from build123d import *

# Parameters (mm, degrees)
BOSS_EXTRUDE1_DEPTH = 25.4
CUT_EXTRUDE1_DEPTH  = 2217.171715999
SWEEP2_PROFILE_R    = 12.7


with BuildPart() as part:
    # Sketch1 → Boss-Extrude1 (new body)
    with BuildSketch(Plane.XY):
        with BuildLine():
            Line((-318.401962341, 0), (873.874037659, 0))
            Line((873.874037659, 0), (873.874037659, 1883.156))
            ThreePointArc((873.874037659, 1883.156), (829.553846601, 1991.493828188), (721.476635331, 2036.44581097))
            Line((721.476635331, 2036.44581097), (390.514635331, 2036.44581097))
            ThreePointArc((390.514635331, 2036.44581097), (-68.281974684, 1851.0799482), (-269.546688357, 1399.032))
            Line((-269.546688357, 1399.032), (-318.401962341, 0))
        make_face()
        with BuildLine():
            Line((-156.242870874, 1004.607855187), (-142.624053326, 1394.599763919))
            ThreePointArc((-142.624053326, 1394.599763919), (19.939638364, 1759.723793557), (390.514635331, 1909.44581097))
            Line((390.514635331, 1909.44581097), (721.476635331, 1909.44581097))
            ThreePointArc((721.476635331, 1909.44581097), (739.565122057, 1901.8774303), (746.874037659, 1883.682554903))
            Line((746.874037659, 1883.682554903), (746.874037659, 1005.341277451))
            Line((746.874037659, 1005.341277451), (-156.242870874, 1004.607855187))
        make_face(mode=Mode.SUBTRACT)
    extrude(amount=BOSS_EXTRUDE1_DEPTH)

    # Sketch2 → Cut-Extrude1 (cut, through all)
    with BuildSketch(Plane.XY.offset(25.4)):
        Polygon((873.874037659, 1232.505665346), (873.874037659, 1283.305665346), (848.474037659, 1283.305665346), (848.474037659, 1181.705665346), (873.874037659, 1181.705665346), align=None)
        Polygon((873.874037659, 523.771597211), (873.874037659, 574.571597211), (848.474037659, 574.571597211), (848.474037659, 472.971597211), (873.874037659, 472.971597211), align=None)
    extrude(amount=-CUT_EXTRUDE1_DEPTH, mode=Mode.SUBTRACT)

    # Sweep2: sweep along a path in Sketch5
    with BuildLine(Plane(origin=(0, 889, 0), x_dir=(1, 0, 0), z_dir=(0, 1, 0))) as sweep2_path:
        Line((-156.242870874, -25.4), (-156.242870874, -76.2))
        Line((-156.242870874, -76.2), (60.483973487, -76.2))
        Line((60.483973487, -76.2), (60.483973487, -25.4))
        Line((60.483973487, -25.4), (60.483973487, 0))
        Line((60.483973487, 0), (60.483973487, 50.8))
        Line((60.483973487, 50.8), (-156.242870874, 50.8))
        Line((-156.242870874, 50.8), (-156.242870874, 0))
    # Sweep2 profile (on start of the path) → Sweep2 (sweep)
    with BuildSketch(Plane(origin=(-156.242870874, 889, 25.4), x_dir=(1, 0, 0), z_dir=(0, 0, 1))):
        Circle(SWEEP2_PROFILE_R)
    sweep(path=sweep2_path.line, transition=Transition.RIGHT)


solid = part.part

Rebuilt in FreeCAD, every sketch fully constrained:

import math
import FreeCAD as App
import Part
import Sketcher
Q = App.Units.Quantity

doc = App.newDocument("Part")
body = doc.addObject("PartDesign::Body", "Body")

# Sketch on XY plane
sketch1 = body.newObject("Sketcher::SketchObject", "Sketch")
sketch1.AttachmentSupport = (doc.getObject("XY_Plane"), [""])
sketch1.MapMode = "FlatFace"
sketch1.addGeometry(Part.LineSegment(App.Vector(-318, 0, 0), App.Vector(874, 0, 0)), False)
sketch1.addGeometry(Part.LineSegment(App.Vector(874, 0, 0), App.Vector(874, 1883, 0)), False)
sketch1.addGeometry(Part.ArcOfCircle(Part.Circle(App.Vector(721, 1884, 0), App.Vector(0, 0, 1), 152), math.radians(0), math.radians(90)), False)
sketch1.addGeometry(Part.LineSegment(App.Vector(721, 2036, 0), App.Vector(391, 2036, 0)), False)
sketch1.addGeometry(Part.ArcOfCircle(Part.Circle(App.Vector(391, 1376, 0), App.Vector(0, 0, 1), 660), math.radians(90), math.radians(178)), False)
sketch1.addGeometry(Part.LineSegment(App.Vector(-270, 1399, 0), App.Vector(-318, 0, 0)), False)
sketch1.addGeometry(Part.LineSegment(App.Vector(747, 1005, 0), App.Vector(-156, 1005, 0)), False)
sketch1.addGeometry(Part.LineSegment(App.Vector(-156, 1005, 0), App.Vector(-143, 1395, 0)), False)
sketch1.addGeometry(Part.ArcOfCircle(Part.Circle(App.Vector(391, 1376, 0), App.Vector(0, 0, 1), 533), math.radians(90), math.radians(178)), False)
sketch1.addGeometry(Part.LineSegment(App.Vector(391, 1909, 0), App.Vector(721, 1909, 0)), False)
sketch1.addGeometry(Part.ArcOfCircle(Part.Circle(App.Vector(721, 1884, 0), App.Vector(0, 0, 1), 25), math.radians(-1), math.radians(90)), False)
sketch1.addGeometry(Part.LineSegment(App.Vector(747, 1884, 0), App.Vector(747, 1005, 0)), False)
sketch1.addConstraint(Sketcher.Constraint("Coincident", 0, 2, 1, 1))
sketch1.addConstraint(Sketcher.Constraint("Coincident", 1, 2, 2, 1))
sketch1.addConstraint(Sketcher.Constraint("Tangent", 2, 2, 3, 1))
sketch1.addConstraint(Sketcher.Constraint("Tangent", 3, 2, 4, 1))
sketch1.addConstraint(Sketcher.Constraint("Tangent", 4, 2, 5, 1))
sketch1.addConstraint(Sketcher.Constraint("Coincident", 5, 2, 0, 1))
sketch1.addConstraint(Sketcher.Constraint("Coincident", 6, 2, 7, 1))
sketch1.addConstraint(Sketcher.Constraint("Tangent", 7, 2, 8, 2))
sketch1.addConstraint(Sketcher.Constraint("Tangent", 8, 1, 9, 1))
sketch1.addConstraint(Sketcher.Constraint("Tangent", 9, 2, 10, 2))
sketch1.addConstraint(Sketcher.Constraint("Coincident", 10, 1, 11, 1))
sketch1.addConstraint(Sketcher.Constraint("Coincident", 11, 2, 6, 1))
sketch1.addConstraint(Sketcher.Constraint("Horizontal", 0))
sketch1.addConstraint(Sketcher.Constraint("Vertical", 1))
sketch1.addConstraint(Sketcher.Constraint("Horizontal", 3))
sketch1.addConstraint(Sketcher.Constraint("Horizontal", 9))
sketch1.addConstraint(Sketcher.Constraint("Vertical", 11))
sketch1.addConstraint(Sketcher.Constraint("Coincident", 8, 3, 4, 3))
sketch1.addConstraint(Sketcher.Constraint("Coincident", 10, 3, 2, 3))
sketch1.addConstraint(Sketcher.Constraint("PointOnObject", 0, 2, -1))
sketch1.addConstraint(Sketcher.Constraint("Parallel", 5, 7))
sketch1.addConstraint(Sketcher.Constraint("Radius", 2, Q("6 in")))
sketch1.addConstraint(Sketcher.Constraint("Radius", 10, Q("1 in")))
sketch1.addConstraint(Sketcher.Constraint("Angle", 5, Q("-92 deg")))
sketch1.addConstraint(Sketcher.Constraint("DistanceX", 10, 1, 1, 2, Q("5 in")))
sketch1.addConstraint(Sketcher.Constraint("DistanceX", 0, 1, 0, 2, Q("46.94 in")))
sketch1.addConstraint(Sketcher.Constraint("DistanceX", 3, 2, 3, 1, Q("13.03 in")))
sketch1.addConstraint(Sketcher.Constraint("DistanceY", 1, 1, 1, 2, Q("74.14 in")))
sketch1.addConstraint(Sketcher.Constraint("Radius", 4, 660.46366))
sketch1.addConstraint(Sketcher.Constraint("DistanceY", 11, 2, 11, 1, 878.341277))
sketch1.addConstraint(Sketcher.Constraint("DistanceX", 4, 2, -1, 1, 269.546688))
sketch1.addConstraint(Sketcher.Constraint("DistanceX", 6, 2, -1, 1, 156.242871))
pad1 = body.newObject("PartDesign::Pad", "Pad")
pad1.Profile = sketch1
pad1.Length = Q("1 in")

# Sketch on XY plane
sketch2 = body.newObject("Sketcher::SketchObject", "Sketch001")
sketch2.AttachmentSupport = (doc.getObject("XY_Plane"), [""])
sketch2.MapMode = "FlatFace"
sketch2.AttachmentOffset = App.Placement(App.Vector(0, 0, 1 * 25.4), App.Rotation())
sketch2.addGeometry(Part.LineSegment(App.Vector(874, 1283, 0), App.Vector(848, 1283, 0)), False)
sketch2.addGeometry(Part.LineSegment(App.Vector(848, 1283, 0), App.Vector(848, 1182, 0)), False)
sketch2.addGeometry(Part.LineSegment(App.Vector(848, 1182, 0), App.Vector(874, 1182, 0)), False)
sketch2.addGeometry(Part.LineSegment(App.Vector(874, 1182, 0), App.Vector(874, 1283, 0)), False)
sketch2.addGeometry(Part.LineSegment(App.Vector(874, 575, 0), App.Vector(848, 575, 0)), False)
sketch2.addGeometry(Part.LineSegment(App.Vector(848, 575, 0), App.Vector(848, 473, 0)), False)
sketch2.addGeometry(Part.LineSegment(App.Vector(848, 473, 0), App.Vector(874, 473, 0)), False)
sketch2.addGeometry(Part.LineSegment(App.Vector(874, 473, 0), App.Vector(874, 575, 0)), False)
sketch2.addConstraint(Sketcher.Constraint("Coincident", 0, 2, 1, 1))
sketch2.addConstraint(Sketcher.Constraint("Coincident", 1, 2, 2, 1))
sketch2.addConstraint(Sketcher.Constraint("Coincident", 2, 2, 3, 1))
sketch2.addConstraint(Sketcher.Constraint("Coincident", 3, 2, 0, 1))
sketch2.addConstraint(Sketcher.Constraint("Coincident", 4, 2, 5, 1))
sketch2.addConstraint(Sketcher.Constraint("Coincident", 5, 2, 6, 1))
sketch2.addConstraint(Sketcher.Constraint("Coincident", 6, 2, 7, 1))
sketch2.addConstraint(Sketcher.Constraint("Coincident", 7, 2, 4, 1))
sketch2.addConstraint(Sketcher.Constraint("Horizontal", 0))
sketch2.addConstraint(Sketcher.Constraint("Vertical", 1))
sketch2.addConstraint(Sketcher.Constraint("Horizontal", 2))
sketch2.addConstraint(Sketcher.Constraint("Vertical", 3))
sketch2.addConstraint(Sketcher.Constraint("Horizontal", 4))
sketch2.addConstraint(Sketcher.Constraint("Vertical", 5))
sketch2.addConstraint(Sketcher.Constraint("Horizontal", 6))
sketch2.addConstraint(Sketcher.Constraint("Vertical", 7))
sketch2.addConstraint(Sketcher.Constraint("Vertical", 1, 2, 4, 2))
sketch2.addConstraint(Sketcher.Constraint("Vertical", 3, 2, 6, 2))
sketch2.addConstraint(Sketcher.Constraint("Equal", 3, 5))
sketch2.addConstraint(Sketcher.Constraint("DistanceX", 0, 2, 0, 1, Q("1 in")))
sketch2.addConstraint(Sketcher.Constraint("DistanceY", 1, 2, 1, 1, Q("4 in")))
sketch2.addConstraint(Sketcher.Constraint("DistanceY", 4, 2, 1, 2, 607.134068))
sketch2.addConstraint(Sketcher.Constraint("DistanceX", -1, 1, 0, 2, 848.474038))
sketch2.addConstraint(Sketcher.Constraint("DistanceY", -1, 1, 0, 2, 1283.305665))
pocket1 = body.newObject("PartDesign::Pocket", "Pocket")
pocket1.Profile = sketch2
pocket1.Type = "ThroughAll"

# Sketch on XY plane
sketch3 = body.newObject("Sketcher::SketchObject", "Sketch002")
sketch3.AttachmentSupport = (doc.getObject("XY_Plane"), [""])
sketch3.MapMode = "FlatFace"
sketch3.AttachmentOffset = App.Placement(App.Vector(0, 0, 1 * 25.4), App.Rotation())
sketch3.addGeometry(Part.Circle(App.Vector(-156, 889, 0), App.Vector(0, 0, 1), 13), False)
sketch3.addConstraint(Sketcher.Constraint("Diameter", 0, Q("1 in")))
sketch3.addConstraint(Sketcher.Constraint("DistanceY", -1, 1, 0, 3, Q("35 in")))
sketch3.addConstraint(Sketcher.Constraint("DistanceX", 0, 3, -1, 1, 156.242871))

# Sketch on XZ plane
sketch4 = body.newObject("Sketcher::SketchObject", "Sketch003")
sketch4.AttachmentSupport = (doc.getObject("XZ_Plane"), [""])
sketch4.MapMode = "FlatFace"
sketch4.AttachmentOffset = App.Placement(App.Vector(0, 0, -35 * 25.4), App.Rotation())
sketch4.addGeometry(Part.LineSegment(App.Vector(-156, 25, 0), App.Vector(-156, 76, 0)), False)
sketch4.addGeometry(Part.LineSegment(App.Vector(-156, 76, 0), App.Vector(60, 76, 0)), False)
sketch4.addGeometry(Part.LineSegment(App.Vector(60, 76, 0), App.Vector(60, -51, 0)), False)
sketch4.addGeometry(Part.LineSegment(App.Vector(60, -51, 0), App.Vector(-156, -51, 0)), False)
sketch4.addGeometry(Part.LineSegment(App.Vector(-156, -51, 0), App.Vector(-156, 0, 0)), False)
sketch4.addConstraint(Sketcher.Constraint("Coincident", 0, 2, 1, 1))
sketch4.addConstraint(Sketcher.Constraint("Coincident", 1, 2, 2, 1))
sketch4.addConstraint(Sketcher.Constraint("Coincident", 2, 2, 3, 1))
sketch4.addConstraint(Sketcher.Constraint("Coincident", 3, 2, 4, 1))
sketch4.addConstraint(Sketcher.Constraint("Vertical", 0))
sketch4.addConstraint(Sketcher.Constraint("Horizontal", 1))
sketch4.addConstraint(Sketcher.Constraint("Vertical", 2))
sketch4.addConstraint(Sketcher.Constraint("Horizontal", 3))
sketch4.addConstraint(Sketcher.Constraint("Vertical", 4))
sketch4.addConstraint(Sketcher.Constraint("PointOnObject", 4, 2, -1))
sketch4.addConstraint(Sketcher.Constraint("Vertical", 0, 2, 3, 2))
sketch4.addConstraint(Sketcher.Constraint("Equal", 0, 4))
sketch4.addConstraint(Sketcher.Constraint("DistanceY", 0, 1, 0, 2, Q("2 in")))
sketch4.addConstraint(Sketcher.Constraint("DistanceY", 2, 2, 2, 1, Q("5 in")))
sketch4.addConstraint(Sketcher.Constraint("DistanceX", 1, 1, 1, 2, 216.726844))
sketch4.addConstraint(Sketcher.Constraint("DistanceX", 0, 1, -1, 1, 156.242871))
doc.recompute()

additivepipe = body.newObject("PartDesign::AdditivePipe", "AdditivePipe")
additivepipe.Profile = sketch3
additivepipe.Spine = (sketch4, ["Edge1", "Edge2", "Edge3", "Edge4", "Edge5"])
additivepipe.Transition = "Right corner"

doc.recompute()
